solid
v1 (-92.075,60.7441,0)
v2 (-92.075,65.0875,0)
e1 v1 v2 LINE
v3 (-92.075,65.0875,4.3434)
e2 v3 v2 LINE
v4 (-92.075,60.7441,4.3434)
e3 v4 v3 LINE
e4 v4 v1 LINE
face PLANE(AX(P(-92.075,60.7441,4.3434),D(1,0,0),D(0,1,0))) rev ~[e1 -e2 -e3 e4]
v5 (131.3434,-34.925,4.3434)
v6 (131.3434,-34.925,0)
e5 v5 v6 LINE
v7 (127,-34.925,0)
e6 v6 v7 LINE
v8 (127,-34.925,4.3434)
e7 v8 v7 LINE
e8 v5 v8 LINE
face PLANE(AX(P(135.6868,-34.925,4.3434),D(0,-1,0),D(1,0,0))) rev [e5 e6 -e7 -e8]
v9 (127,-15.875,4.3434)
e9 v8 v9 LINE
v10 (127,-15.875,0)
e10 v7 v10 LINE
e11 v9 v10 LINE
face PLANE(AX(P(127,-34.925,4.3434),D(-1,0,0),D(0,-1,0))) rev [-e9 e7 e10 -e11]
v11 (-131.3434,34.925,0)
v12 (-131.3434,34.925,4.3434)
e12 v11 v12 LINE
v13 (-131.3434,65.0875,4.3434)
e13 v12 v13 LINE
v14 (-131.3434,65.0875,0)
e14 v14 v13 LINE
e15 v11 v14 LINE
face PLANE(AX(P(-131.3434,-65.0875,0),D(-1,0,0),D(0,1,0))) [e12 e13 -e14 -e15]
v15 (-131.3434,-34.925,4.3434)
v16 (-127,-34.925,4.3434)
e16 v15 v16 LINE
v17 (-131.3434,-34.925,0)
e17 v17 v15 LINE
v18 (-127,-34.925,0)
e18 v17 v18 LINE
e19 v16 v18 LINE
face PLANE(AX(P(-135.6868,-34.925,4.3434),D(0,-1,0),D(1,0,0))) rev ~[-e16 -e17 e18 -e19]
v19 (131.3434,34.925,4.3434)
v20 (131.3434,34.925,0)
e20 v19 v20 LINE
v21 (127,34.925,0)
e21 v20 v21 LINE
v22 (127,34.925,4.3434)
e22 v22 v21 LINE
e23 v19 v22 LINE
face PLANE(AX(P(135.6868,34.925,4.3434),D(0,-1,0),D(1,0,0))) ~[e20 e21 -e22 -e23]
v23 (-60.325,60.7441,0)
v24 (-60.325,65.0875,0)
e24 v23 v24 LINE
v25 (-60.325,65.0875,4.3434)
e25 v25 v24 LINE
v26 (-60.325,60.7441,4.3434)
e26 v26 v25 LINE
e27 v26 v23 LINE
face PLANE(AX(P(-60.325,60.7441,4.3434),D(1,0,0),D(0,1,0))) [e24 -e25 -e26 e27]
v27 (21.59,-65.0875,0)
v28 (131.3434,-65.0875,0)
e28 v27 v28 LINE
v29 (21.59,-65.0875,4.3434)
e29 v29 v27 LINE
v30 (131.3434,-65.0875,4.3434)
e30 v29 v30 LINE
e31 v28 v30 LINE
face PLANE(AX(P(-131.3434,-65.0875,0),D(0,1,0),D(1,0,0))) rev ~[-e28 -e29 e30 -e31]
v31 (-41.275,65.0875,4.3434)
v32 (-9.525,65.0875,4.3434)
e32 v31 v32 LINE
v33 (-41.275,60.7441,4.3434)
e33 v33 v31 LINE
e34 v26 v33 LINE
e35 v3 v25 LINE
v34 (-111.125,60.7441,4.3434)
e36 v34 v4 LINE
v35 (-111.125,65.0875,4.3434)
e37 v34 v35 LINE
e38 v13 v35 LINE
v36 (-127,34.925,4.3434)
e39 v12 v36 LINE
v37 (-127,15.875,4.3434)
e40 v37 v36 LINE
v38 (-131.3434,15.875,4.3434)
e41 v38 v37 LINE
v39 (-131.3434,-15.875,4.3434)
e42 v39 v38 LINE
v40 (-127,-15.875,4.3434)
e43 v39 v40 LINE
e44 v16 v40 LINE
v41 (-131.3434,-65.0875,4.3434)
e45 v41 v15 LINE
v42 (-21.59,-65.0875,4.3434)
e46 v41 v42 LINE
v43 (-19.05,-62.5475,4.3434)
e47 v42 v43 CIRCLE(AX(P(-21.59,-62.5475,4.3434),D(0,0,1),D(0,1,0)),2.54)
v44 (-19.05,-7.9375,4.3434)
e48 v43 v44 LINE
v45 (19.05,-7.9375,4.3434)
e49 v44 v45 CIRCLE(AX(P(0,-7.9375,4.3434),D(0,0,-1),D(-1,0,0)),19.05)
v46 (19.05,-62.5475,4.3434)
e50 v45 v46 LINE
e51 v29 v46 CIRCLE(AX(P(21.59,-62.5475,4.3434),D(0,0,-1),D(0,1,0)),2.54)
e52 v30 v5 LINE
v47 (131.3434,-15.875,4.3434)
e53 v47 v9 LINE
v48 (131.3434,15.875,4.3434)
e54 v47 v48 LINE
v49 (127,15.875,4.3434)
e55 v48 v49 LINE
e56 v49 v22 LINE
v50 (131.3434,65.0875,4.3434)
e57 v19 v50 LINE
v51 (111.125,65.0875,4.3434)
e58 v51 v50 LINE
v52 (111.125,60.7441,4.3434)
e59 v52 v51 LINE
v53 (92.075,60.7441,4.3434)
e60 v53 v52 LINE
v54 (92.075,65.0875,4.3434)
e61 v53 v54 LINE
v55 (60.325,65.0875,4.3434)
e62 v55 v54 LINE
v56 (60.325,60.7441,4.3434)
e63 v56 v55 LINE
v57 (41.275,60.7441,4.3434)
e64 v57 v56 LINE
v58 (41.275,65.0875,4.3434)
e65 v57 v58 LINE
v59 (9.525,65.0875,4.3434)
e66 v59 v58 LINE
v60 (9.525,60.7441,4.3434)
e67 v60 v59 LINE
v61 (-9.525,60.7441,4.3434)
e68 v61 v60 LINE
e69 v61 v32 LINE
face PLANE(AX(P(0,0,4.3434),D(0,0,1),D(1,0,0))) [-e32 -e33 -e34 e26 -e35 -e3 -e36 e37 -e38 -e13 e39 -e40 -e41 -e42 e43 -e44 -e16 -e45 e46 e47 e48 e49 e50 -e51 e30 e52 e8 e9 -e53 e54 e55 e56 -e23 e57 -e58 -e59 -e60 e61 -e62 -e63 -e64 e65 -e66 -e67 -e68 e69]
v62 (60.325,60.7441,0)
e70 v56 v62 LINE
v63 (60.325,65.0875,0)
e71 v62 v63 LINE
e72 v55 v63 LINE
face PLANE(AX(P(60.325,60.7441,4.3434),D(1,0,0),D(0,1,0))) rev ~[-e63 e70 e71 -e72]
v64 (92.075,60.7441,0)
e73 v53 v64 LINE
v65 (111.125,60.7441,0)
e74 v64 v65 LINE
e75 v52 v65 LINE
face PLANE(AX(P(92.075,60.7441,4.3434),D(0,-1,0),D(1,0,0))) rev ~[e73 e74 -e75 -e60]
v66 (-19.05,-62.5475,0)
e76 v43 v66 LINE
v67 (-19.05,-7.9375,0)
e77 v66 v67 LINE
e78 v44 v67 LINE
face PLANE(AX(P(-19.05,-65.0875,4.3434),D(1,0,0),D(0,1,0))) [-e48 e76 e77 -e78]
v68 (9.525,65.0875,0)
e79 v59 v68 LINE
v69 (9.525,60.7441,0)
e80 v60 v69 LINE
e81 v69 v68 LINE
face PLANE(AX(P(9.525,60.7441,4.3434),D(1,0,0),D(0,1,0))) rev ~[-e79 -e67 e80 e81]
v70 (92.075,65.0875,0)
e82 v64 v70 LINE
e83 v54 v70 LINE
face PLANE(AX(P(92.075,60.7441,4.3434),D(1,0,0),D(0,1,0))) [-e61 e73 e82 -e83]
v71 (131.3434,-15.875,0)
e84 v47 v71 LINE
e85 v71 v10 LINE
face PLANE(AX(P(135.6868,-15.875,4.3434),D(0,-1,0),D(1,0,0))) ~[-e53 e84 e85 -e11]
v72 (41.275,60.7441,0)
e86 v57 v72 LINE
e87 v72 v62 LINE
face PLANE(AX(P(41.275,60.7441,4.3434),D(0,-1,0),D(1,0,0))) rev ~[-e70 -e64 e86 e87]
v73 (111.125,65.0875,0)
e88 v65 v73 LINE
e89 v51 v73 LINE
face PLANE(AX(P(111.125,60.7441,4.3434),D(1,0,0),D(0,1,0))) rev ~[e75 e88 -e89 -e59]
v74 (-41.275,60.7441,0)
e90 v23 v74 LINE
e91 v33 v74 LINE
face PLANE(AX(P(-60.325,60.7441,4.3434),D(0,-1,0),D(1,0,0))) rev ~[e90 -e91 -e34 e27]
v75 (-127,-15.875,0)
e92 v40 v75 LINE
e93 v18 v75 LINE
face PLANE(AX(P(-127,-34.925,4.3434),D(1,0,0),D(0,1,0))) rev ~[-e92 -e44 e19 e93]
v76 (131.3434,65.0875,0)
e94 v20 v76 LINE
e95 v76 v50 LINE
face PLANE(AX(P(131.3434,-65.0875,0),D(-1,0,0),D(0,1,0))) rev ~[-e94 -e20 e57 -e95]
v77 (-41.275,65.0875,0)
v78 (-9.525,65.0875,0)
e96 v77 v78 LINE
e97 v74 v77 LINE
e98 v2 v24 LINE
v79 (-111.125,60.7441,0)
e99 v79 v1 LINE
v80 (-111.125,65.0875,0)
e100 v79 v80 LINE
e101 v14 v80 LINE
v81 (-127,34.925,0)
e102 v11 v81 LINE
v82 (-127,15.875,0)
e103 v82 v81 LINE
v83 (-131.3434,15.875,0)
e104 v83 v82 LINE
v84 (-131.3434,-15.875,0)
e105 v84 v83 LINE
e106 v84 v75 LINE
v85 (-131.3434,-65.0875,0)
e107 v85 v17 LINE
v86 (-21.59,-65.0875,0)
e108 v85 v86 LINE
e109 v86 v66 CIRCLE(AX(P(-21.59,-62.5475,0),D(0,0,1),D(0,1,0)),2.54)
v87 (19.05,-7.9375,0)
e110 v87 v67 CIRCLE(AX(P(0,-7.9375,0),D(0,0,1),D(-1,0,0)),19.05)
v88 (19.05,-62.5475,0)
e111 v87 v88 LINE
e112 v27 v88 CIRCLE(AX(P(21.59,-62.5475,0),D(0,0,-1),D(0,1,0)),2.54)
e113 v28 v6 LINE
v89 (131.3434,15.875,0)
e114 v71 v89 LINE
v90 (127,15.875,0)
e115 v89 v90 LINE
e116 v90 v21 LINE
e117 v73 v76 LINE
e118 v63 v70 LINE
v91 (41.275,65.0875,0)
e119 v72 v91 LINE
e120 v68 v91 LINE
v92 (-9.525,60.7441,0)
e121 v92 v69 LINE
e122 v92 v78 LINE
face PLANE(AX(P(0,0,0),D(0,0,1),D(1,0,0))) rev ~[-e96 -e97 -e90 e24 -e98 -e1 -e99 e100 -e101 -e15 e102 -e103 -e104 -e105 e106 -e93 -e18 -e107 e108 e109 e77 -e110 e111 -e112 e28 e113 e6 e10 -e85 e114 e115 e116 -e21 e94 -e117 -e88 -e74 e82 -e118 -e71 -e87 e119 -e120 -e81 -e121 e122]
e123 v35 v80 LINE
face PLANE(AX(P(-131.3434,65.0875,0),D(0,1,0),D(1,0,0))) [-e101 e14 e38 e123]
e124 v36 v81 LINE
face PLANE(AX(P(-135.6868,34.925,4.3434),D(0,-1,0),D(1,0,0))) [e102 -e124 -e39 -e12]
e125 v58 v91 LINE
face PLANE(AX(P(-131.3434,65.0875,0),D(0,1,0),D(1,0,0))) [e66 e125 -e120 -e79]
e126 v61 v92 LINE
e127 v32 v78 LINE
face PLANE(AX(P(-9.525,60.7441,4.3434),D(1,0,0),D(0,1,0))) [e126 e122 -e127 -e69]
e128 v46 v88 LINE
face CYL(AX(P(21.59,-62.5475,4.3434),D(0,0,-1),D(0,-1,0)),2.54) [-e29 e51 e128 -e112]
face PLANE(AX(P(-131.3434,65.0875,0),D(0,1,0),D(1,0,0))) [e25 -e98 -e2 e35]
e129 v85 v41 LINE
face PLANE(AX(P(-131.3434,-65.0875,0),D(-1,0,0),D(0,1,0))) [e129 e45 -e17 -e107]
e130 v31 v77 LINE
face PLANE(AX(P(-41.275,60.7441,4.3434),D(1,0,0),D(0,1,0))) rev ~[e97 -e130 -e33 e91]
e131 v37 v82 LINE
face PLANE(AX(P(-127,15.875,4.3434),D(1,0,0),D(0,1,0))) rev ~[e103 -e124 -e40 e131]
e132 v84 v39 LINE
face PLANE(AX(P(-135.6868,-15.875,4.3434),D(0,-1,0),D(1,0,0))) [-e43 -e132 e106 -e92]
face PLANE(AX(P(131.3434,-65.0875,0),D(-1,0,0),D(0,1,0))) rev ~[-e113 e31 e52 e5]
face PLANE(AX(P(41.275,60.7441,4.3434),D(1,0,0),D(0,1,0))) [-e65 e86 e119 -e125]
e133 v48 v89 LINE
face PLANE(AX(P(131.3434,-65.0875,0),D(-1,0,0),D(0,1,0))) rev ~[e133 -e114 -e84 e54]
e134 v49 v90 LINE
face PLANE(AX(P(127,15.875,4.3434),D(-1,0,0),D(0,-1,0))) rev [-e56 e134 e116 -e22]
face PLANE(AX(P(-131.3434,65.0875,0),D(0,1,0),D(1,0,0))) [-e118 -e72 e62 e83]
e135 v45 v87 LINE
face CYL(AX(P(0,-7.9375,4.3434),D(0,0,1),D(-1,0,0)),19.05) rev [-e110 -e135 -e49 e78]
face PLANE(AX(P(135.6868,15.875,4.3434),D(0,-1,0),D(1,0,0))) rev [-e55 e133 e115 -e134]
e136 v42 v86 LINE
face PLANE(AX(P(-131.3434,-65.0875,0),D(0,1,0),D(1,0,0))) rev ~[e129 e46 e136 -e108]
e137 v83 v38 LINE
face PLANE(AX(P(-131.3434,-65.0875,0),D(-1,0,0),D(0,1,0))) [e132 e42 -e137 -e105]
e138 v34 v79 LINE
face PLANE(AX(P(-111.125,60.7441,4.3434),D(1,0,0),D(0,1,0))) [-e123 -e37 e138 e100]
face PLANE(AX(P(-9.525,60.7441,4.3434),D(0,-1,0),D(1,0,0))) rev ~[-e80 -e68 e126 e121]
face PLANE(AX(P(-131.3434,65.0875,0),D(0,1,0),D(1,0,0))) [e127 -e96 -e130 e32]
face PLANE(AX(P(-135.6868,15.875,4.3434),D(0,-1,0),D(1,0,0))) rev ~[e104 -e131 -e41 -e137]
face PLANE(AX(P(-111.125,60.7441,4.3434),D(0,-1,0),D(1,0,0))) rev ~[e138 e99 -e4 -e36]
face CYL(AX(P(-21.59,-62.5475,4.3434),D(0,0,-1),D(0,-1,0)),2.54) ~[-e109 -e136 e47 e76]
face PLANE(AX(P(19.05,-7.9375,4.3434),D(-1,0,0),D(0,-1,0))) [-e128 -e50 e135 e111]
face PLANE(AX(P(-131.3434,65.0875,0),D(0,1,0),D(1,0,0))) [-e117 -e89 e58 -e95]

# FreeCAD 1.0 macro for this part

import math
import FreeCAD as App
import Part
import Sketcher
Q = App.Units.Quantity


def edges_at(feature, points):
    """Names of the edges that pass closest to the given points."""
    edges = feature.Shape.Edges
    near = lambda p: min(range(len(edges)), key=lambda i: edges[i].distToShape(Part.Vertex(*p))[0])
    return sorted({f"Edge{near(p) + 1}" for p in points})

doc = App.newDocument("Part")
body = doc.addObject("PartDesign::Body", "Body")

sketch1 = body.newObject("Sketcher::SketchObject", "Sketch")
sketch1.AttachmentSupport = (doc.getObject("XY_Plane"), [""])
sketch1.MapMode = "FlatFace"
sketch1.addGeometry(Part.LineSegment(App.Vector(-131.3434, 65.0875, 0), App.Vector(-131.3434, -65.0875, 0)), False)
sketch1.addGeometry(Part.LineSegment(App.Vector(-131.3434, -65.0875, 0), App.Vector(131.3434, -65.0875, 0)), False)
sketch1.addGeometry(Part.LineSegment(App.Vector(131.3434, -65.0875, 0), App.Vector(131.3434, 65.0875, 0)), False)
sketch1.addGeometry(Part.LineSegment(App.Vector(131.3434, 65.0875, 0), App.Vector(-131.3434, 65.0875, 0)), False)
sketch1.addConstraint(Sketcher.Constraint("Coincident", 0, 2, 1, 1))
sketch1.addConstraint(Sketcher.Constraint("Coincident", 1, 2, 2, 1))
sketch1.addConstraint(Sketcher.Constraint("Coincident", 2, 2, 3, 1))
sketch1.addConstraint(Sketcher.Constraint("Coincident", 3, 2, 0, 1))
sketch1.addConstraint(Sketcher.Constraint("Vertical", 0))
sketch1.addConstraint(Sketcher.Constraint("Horizontal", 1))
sketch1.addConstraint(Sketcher.Constraint("Vertical", 2))
sketch1.addConstraint(Sketcher.Constraint("Horizontal", 3))
sketch1.addConstraint(Sketcher.Constraint("Symmetric", 0, 2, 2, 2, -1, 1))
sketch1.addConstraint(Sketcher.Constraint("DistanceX", 1, 1, 1, 2, Q("10.342 in")))
sketch1.addConstraint(Sketcher.Constraint("DistanceY", 0, 2, 0, 1, Q("5.125 in")))
pad1 = body.newObject("PartDesign::Pad", "Pad")
pad1.Profile = sketch1
pad1.Length = Q("0.171 in")

sketch2 = body.newObject("Sketcher::SketchObject", "Sketch001")
sketch2.AttachmentSupport = (doc.getObject("XY_Plane"), [""])
sketch2.MapMode = "FlatFace"
sketch2.AttachmentOffset = App.Placement(App.Vector(0, 0, 0.171 * 25.4), App.Rotation())
sketch2.addGeometry(Part.LineSegment(App.Vector(-60.325, 69.4309, 0), App.Vector(-60.325, 60.7441, 0)), False)
sketch2.addGeometry(Part.LineSegment(App.Vector(-60.325, 60.7441, 0), App.Vector(-41.275, 60.7441, 0)), False)
sketch2.addGeometry(Part.LineSegment(App.Vector(-41.275, 60.7441, 0), App.Vector(-41.275, 69.4309, 0)), False)
sketch2.addGeometry(Part.LineSegment(App.Vector(-41.275, 69.4309, 0), App.Vector(-60.325, 69.4309, 0)), False)
sketch2.addGeometry(Part.LineSegment(App.Vector(-9.525, 69.4309, 0), App.Vector(-9.525, 60.7441, 0)), False)
sketch2.addGeometry(Part.LineSegment(App.Vector(-9.525, 60.7441, 0), App.Vector(9.525, 60.7441, 0)), False)
sketch2.addGeometry(Part.LineSegment(App.Vector(9.525, 60.7441, 0), App.Vector(9.525, 69.4309, 0)), False)
sketch2.addGeometry(Part.LineSegment(App.Vector(9.525, 69.4309, 0), App.Vector(-9.525, 69.4309, 0)), False)
sketch2.addGeometry(Part.LineSegment(App.Vector(41.275, 69.4309, 0), App.Vector(41.275, 60.7441, 0)), False)
sketch2.addGeometry(Part.LineSegment(App.Vector(41.275, 60.7441, 0), App.Vector(60.325, 60.7441, 0)), False)
sketch2.addGeometry(Part.LineSegment(App.Vector(60.325, 60.7441, 0), App.Vector(60.325, 69.4309, 0)), False)
sketch2.addGeometry(Part.LineSegment(App.Vector(60.325, 69.4309, 0), App.Vector(41.275, 69.4309, 0)), False)
sketch2.addGeometry(Part.LineSegment(App.Vector(92.075, 69.4309, 0), App.Vector(92.075, 60.7441, 0)), False)
sketch2.addGeometry(Part.LineSegment(App.Vector(92.075, 60.7441, 0), App.Vector(111.125, 60.7441, 0)), False)
sketch2.addGeometry(Part.LineSegment(App.Vector(111.125, 60.7441, 0), App.Vector(111.125, 69.4309, 0)), False)
sketch2.addGeometry(Part.LineSegment(App.Vector(111.125, 69.4309, 0), App.Vector(92.075, 69.4309, 0)), False)
sketch2.addGeometry(Part.LineSegment(App.Vector(-111.125, 69.4309, 0), App.Vector(-111.125, 60.7441, 0)), False)
sketch2.addGeometry(Part.LineSegment(App.Vector(-111.125, 60.7441, 0), App.Vector(-92.075, 60.7441, 0)), False)
sketch2.addGeometry(Part.LineSegment(App.Vector(-92.075, 60.7441, 0), App.Vector(-92.075, 69.4309, 0)), False)
sketch2.addGeometry(Part.LineSegment(App.Vector(-92.075, 69.4309, 0), App.Vector(-111.125, 69.4309, 0)), False)
sketch2.addConstraint(Sketcher.Constraint("Coincident", 0, 2, 1, 1))
sketch2.addConstraint(Sketcher.Constraint("Coincident", 1, 2, 2, 1))
sketch2.addConstraint(Sketcher.Constraint("Coincident", 2, 2, 3, 1))
sketch2.addConstraint(Sketcher.Constraint("Coincident", 3, 2, 0, 1))
sketch2.addConstraint(Sketcher.Constraint("Coincident", 4, 2, 5, 1))
sketch2.addConstraint(Sketcher.Constraint("Coincident", 5, 2, 6, 1))
sketch2.addConstraint(Sketcher.Constraint("Coincident", 6, 2, 7, 1))
sketch2.addConstraint(Sketcher.Constraint("Coincident", 7, 2, 4, 1))
sketch2.addConstraint(Sketcher.Constraint("Coincident", 8, 2, 9, 1))
sketch2.addConstraint(Sketcher.Constraint("Coincident", 9, 2, 10, 1))
sketch2.addConstraint(Sketcher.Constraint("Coincident", 10, 2, 11, 1))
sketch2.addConstraint(Sketcher.Constraint("Coincident", 11, 2, 8, 1))
sketch2.addConstraint(Sketcher.Constraint("Coincident", 12, 2, 13, 1))
sketch2.addConstraint(Sketcher.Constraint("Coincident", 13, 2, 14, 1))
sketch2.addConstraint(Sketcher.Constraint("Coincident", 14, 2, 15, 1))
sketch2.addConstraint(Sketcher.Constraint("Coincident", 15, 2, 12, 1))
sketch2.addConstraint(Sketcher.Constraint("Coincident", 16, 2, 17, 1))
sketch2.addConstraint(Sketcher.Constraint("Coincident", 17, 2, 18, 1))
sketch2.addConstraint(Sketcher.Constraint("Coincident", 18, 2, 19, 1))
sketch2.addConstraint(Sketcher.Constraint("Coincident", 19, 2, 16, 1))
sketch2.addConstraint(Sketcher.Constraint("Vertical", 0))
sketch2.addConstraint(Sketcher.Constraint("Horizontal", 1))
sketch2.addConstraint(Sketcher.Constraint("Vertical", 2))
sketch2.addConstraint(Sketcher.Constraint("Horizontal", 3))
sketch2.addConstraint(Sketcher.Constraint("Vertical", 4))
sketch2.addConstraint(Sketcher.Constraint("Horizontal", 5))
sketch2.addConstraint(Sketcher.Constraint("Vertical", 6))
sketch2.addConstraint(Sketcher.Constraint("Horizontal", 7))
sketch2.addConstraint(Sketcher.Constraint("Vertical", 8))
sketch2.addConstraint(Sketcher.Constraint("Horizontal", 9))
sketch2.addConstraint(Sketcher.Constraint("Vertical", 10))
sketch2.addConstraint(Sketcher.Constraint("Horizontal", 11))
sketch2.addConstraint(Sketcher.Constraint("Vertical", 12))
sketch2.addConstraint(Sketcher.Constraint("Horizontal", 13))
sketch2.addConstraint(Sketcher.Constraint("Vertical", 14))
sketch2.addConstraint(Sketcher.Constraint("Horizontal", 15))
sketch2.addConstraint(Sketcher.Constraint("Vertical", 16))
sketch2.addConstraint(Sketcher.Constraint("Horizontal", 17))
sketch2.addConstraint(Sketcher.Constraint("Vertical", 18))
sketch2.addConstraint(Sketcher.Constraint("Horizontal", 19))
sketch2.addConstraint(Sketcher.Constraint("Symmetric", 1, 2, 8, 2, -2))
sketch2.addConstraint(Sketcher.Constraint("Symmetric", 3, 2, 10, 2, -2))
sketch2.addConstraint(Sketcher.Constraint("Symmetric", 13, 2, 16, 2, -2))
sketch2.addConstraint(Sketcher.Constraint("Symmetric", 15, 2, 18, 2, -2))
sketch2.addConstraint(Sketcher.Constraint("Horizontal", 1, 2, 4, 2))
sketch2.addConstraint(Sketcher.Constraint("Horizontal", 3, 2, 6, 2))
sketch2.addConstraint(Sketcher.Constraint("Horizontal", 9, 2, 12, 2))
sketch2.addConstraint(Sketcher.Constraint("Horizontal", 11, 2, 14, 2))
sketch2.addConstraint(Sketcher.Constraint("Equal", 3, 5))
sketch2.addConstraint(Sketcher.Constraint("Equal", 11, 13))
sketch2.addConstraint(Sketcher.Constraint("DistanceX", 0, 2, 4, 2, Q("2 in")))
sketch2.addConstraint(Sketcher.Constraint("DistanceX", 4, 2, 8, 2, Q("2 in")))
sketch2.addConstraint(Sketcher.Constraint("DistanceX", 8, 2, 12, 2, Q("2 in")))
sketch2.addConstraint(Sketcher.Constraint("DistanceX", 1, 1, 1, 2, Q("0.75 in")))
sketch2.addConstraint(Sketcher.Constraint("DistanceY", 0, 2, 0, 1, Q("0.342 in")))
sketch2.addConstraint(Sketcher.Constraint("DistanceY", -1, 1, 0, 2, Q("2.3915 in")))
pocket1 = body.newObject("PartDesign::Pocket", "Pocket")
pocket1.Profile = sketch2
pocket1.Type = "ThroughAll"

sketch3 = body.newObject("Sketcher::SketchObject", "Sketch002")
sketch3.AttachmentSupport = (doc.getObject("XY_Plane"), [""])
sketch3.MapMode = "FlatFace"
sketch3.AttachmentOffset = App.Placement(App.Vector(0, 0, 0.171 * 25.4), App.Rotation())
sketch3.addGeometry(Part.LineSegment(App.Vector(-19.05, -7.9375, 0), App.Vector(-19.05, -65.0875, 0)), False)
sketch3.addGeometry(Part.ArcOfCircle(Part.Circle(App.Vector(0, -65.0875, 0), App.Vector(0, 0, 1), 19.05), math.radians(180), math.radians(360)), False)
sketch3.addGeometry(Part.LineSegment(App.Vector(19.05, -65.0875, 0), App.Vector(19.05, -7.9375, 0)), False)
sketch3.addGeometry(Part.ArcOfCircle(Part.Circle(App.Vector(0, -7.9375, 0), App.Vector(0, 0, 1), 19.05), math.radians(0), math.radians(180)), False)
sketch3.addConstraint(Sketcher.Constraint("Tangent", 0, 2, 1, 1))
sketch3.addConstraint(Sketcher.Constraint("Tangent", 1, 2, 2, 1))
sketch3.addConstraint(Sketcher.Constraint("Tangent", 2, 2, 3, 1))
sketch3.addConstraint(Sketcher.Constraint("Tangent", 3, 2, 0, 1))
sketch3.addConstraint(Sketcher.Constraint("Vertical", 0))
sketch3.addConstraint(Sketcher.Constraint("Vertical", 2))
sketch3.addConstraint(Sketcher.Constraint("PointOnObject", 1, 3, -2))
sketch3.addConstraint(Sketcher.Constraint("Radius", 1, Q("0.75 in")))
sketch3.addConstraint(Sketcher.Constraint("DistanceY", 0, 2, 0, 1, Q("2.25 in")))
sketch3.addConstraint(Sketcher.Constraint("DistanceY", 1, 3, -1, 1, Q("2.5625 in")))
pocket2 = body.newObject("PartDesign::Pocket", "Pocket001")
pocket2.Profile = sketch3
pocket2.Type = "ThroughAll"

sketch4 = body.newObject("Sketcher::SketchObject", "Sketch003")
sketch4.AttachmentSupport = (doc.getObject("XY_Plane"), [""])
sketch4.MapMode = "FlatFace"
sketch4.AttachmentOffset = App.Placement(App.Vector(0, 0, 0.171 * 25.4), App.Rotation())
sketch4.addGeometry(Part.LineSegment(App.Vector(-135.6868, -15.875, 0), App.Vector(-135.6868, -34.925, 0)), False)
sketch4.addGeometry(Part.LineSegment(App.Vector(-135.6868, -34.925, 0), App.Vector(-127, -34.925, 0)), False)
sketch4.addGeometry(Part.LineSegment(App.Vector(-127, -34.925, 0), App.Vector(-127, -15.875, 0)), False)
sketch4.addGeometry(Part.LineSegment(App.Vector(-127, -15.875, 0), App.Vector(-135.6868, -15.875, 0)), False)
sketch4.addGeometry(Part.LineSegment(App.Vector(-135.6868, 34.925, 0), App.Vector(-135.6868, 15.875, 0)), False)
sketch4.addGeometry(Part.LineSegment(App.Vector(-135.6868, 15.875, 0), App.Vector(-127, 15.875, 0)), False)
sketch4.addGeometry(Part.LineSegment(App.Vector(-127, 15.875, 0), App.Vector(-127, 34.925, 0)), False)
sketch4.addGeometry(Part.LineSegment(App.Vector(-127, 34.925, 0), App.Vector(-135.6868, 34.925, 0)), False)
sketch4.addConstraint(Sketcher.Constraint("Coincident", 0, 2, 1, 1))
sketch4.addConstraint(Sketcher.Constraint("Coincident", 1, 2, 2, 1))
sketch4.addConstraint(Sketcher.Constraint("Coincident", 2, 2, 3, 1))
sketch4.addConstraint(Sketcher.Constraint("Coincident", 3, 2, 0, 1))
sketch4.addConstraint(Sketcher.Constraint("Coincident", 4, 2, 5, 1))
sketch4.addConstraint(Sketcher.Constraint("Coincident", 5, 2, 6, 1))
sketch4.addConstraint(Sketcher.Constraint("Coincident", 6, 2, 7, 1))
sketch4.addConstraint(Sketcher.Constraint("Coincident", 7, 2, 4, 1))
sketch4.addConstraint(Sketcher.Constraint("Vertical", 0))
sketch4.addConstraint(Sketcher.Constraint("Horizontal", 1))
sketch4.addConstraint(Sketcher.Constraint("Vertical", 2))
sketch4.addConstraint(Sketcher.Constraint("Horizontal", 3))
sketch4.addConstraint(Sketcher.Constraint("Vertical", 4))
sketch4.addConstraint(Sketcher.Constraint("Horizontal", 5))
sketch4.addConstraint(Sketcher.Constraint("Vertical", 6))
sketch4.addConstraint(Sketcher.Constraint("Horizontal", 7))
sketch4.addConstraint(Sketcher.Constraint("Symmetric", 3, 2, 4, 2, -1))
sketch4.addConstraint(Sketcher.Constraint("Symmetric", 1, 2, 6, 2, -1))
sketch4.addConstraint(Sketcher.Constraint("DistanceX", 1, 2, -1, 1, Q("5 in")))
sketch4.addConstraint(Sketcher.Constraint("DistanceY", 0, 2, 4, 2, Q("2 in")))
sketch4.addConstraint(Sketcher.Constraint("DistanceY", 0, 2, 0, 1, Q("0.75 in")))
sketch4.addConstraint(Sketcher.Constraint("DistanceX", 1, 1, 1, 2, Q("0.342 in")))
pocket3 = body.newObject("PartDesign::Pocket", "Pocket002")
pocket3.Profile = sketch4
pocket3.Type = "ThroughAll"
doc.recompute()

mirrored = body.newObject("PartDesign::Mirrored", "Mirrored")
mirrored.Originals = [pocket3]
mirrored.MirrorPlane = (doc.getObject("YZ_Plane"), [""])
body.Tip = mirrored
doc.recompute()

fillet = body.newObject("PartDesign::Fillet", "Fillet")
fillet.Base = (mirrored, edges_at(mirrored, [(19.05, -65.088, 2.172), (-19.05, -65.088, 2.172)]))
fillet.Radius = Q("0.1 in")

doc.recompute()
